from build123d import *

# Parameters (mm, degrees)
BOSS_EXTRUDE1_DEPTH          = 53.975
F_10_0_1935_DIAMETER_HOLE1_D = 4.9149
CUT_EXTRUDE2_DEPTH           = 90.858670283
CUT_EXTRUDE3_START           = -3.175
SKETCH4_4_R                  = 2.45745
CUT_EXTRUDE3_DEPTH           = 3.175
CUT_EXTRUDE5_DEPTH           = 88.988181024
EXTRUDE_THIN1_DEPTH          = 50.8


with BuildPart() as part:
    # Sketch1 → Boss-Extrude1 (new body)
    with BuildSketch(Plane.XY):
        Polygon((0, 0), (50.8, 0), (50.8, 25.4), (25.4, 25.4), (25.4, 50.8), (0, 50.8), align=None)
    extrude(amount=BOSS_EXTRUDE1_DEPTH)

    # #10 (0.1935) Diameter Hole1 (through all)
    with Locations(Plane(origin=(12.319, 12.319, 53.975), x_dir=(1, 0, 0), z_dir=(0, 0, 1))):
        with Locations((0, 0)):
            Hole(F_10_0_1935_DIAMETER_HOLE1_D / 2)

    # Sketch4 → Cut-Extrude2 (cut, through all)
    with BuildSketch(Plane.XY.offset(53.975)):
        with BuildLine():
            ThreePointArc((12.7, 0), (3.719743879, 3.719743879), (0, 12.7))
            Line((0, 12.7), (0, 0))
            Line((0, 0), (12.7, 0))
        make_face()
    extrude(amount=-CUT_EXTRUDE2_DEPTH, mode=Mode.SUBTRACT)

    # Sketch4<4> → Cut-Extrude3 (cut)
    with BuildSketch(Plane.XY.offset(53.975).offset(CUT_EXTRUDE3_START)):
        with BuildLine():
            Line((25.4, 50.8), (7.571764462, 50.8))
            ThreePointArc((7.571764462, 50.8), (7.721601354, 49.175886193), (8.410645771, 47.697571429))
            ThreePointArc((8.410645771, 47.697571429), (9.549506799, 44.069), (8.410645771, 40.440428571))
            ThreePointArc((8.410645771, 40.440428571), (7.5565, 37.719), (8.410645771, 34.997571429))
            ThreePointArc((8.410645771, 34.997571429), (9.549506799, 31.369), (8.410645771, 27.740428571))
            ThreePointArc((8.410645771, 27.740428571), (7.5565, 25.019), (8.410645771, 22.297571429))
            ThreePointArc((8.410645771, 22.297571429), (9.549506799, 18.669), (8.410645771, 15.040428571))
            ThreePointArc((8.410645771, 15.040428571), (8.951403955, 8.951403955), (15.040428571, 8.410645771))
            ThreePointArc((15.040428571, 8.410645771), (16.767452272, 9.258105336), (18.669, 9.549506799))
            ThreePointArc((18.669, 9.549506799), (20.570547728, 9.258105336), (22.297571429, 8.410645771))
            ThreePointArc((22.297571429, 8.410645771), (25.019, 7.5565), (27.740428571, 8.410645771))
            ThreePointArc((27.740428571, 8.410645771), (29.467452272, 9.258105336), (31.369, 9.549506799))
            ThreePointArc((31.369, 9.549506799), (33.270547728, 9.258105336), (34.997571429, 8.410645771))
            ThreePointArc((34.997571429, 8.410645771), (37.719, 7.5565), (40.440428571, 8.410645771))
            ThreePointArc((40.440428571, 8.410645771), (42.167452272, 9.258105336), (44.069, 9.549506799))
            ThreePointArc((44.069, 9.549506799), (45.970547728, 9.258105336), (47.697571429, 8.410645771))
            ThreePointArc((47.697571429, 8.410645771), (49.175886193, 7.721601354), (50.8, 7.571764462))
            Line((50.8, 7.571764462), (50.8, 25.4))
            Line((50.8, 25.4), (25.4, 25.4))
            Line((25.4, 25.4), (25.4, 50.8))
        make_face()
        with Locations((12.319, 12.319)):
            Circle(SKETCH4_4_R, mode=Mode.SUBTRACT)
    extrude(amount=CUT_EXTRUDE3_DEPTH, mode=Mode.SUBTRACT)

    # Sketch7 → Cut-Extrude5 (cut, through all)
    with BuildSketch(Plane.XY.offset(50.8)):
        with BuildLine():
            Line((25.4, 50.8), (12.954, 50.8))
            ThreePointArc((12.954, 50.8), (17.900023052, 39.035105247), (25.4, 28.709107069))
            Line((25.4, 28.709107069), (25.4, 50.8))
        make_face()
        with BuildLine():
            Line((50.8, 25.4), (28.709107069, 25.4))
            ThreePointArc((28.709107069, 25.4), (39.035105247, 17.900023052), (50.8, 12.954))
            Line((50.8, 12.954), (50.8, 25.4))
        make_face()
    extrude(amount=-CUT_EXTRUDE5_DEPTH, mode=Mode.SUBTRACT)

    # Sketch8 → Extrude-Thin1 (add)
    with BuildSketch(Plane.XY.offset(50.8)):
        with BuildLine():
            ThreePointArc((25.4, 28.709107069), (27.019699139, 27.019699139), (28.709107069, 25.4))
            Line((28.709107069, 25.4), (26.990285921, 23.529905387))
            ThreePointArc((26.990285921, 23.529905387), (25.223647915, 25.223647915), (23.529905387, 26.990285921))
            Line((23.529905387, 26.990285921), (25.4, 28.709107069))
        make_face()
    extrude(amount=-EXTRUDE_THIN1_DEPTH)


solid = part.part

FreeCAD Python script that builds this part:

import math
import FreeCAD as App
import Part
import Sketcher

V = App.Vector
Q = App.Units.Quantity

doc = App.newDocument("Part")
body = doc.addObject("PartDesign::Body", "Body")

# Sketch on XY plane
sketch1 = body.newObject("Sketcher::SketchObject", "Sketch")
sketch1.AttachmentSupport = (doc.getObject("XY_Plane"), [""])
sketch1.MapMode = "FlatFace"
sketch1.addGeometry(Part.LineSegment(V(0, 0, 0), V(51, 0, 0)), False)
sketch1.addGeometry(Part.LineSegment(V(51, 0, 0), V(51, 25, 0)), False)
sketch1.addGeometry(Part.LineSegment(V(51, 25, 0), V(25, 25, 0)), False)
sketch1.addGeometry(Part.LineSegment(V(25, 25, 0), V(25, 51, 0)), False)
sketch1.addGeometry(Part.LineSegment(V(25, 51, 0), V(0, 51, 0)), False)
sketch1.addGeometry(Part.LineSegment(V(0, 51, 0), V(0, 0, 0)), False)
sketch1.addConstraint(Sketcher.Constraint("Coincident", 0, 2, 1, 1))
sketch1.addConstraint(Sketcher.Constraint("Coincident", 1, 2, 2, 1))
sketch1.addConstraint(Sketcher.Constraint("Coincident", 2, 2, 3, 1))
sketch1.addConstraint(Sketcher.Constraint("Coincident", 3, 2, 4, 1))
sketch1.addConstraint(Sketcher.Constraint("Coincident", 4, 2, 5, 1))
sketch1.addConstraint(Sketcher.Constraint("Coincident", 5, 2, 0, 1))
sketch1.addConstraint(Sketcher.Constraint("Horizontal", 0))
sketch1.addConstraint(Sketcher.Constraint("Vertical", 1))
sketch1.addConstraint(Sketcher.Constraint("Horizontal", 2))
sketch1.addConstraint(Sketcher.Constraint("Vertical", 3))
sketch1.addConstraint(Sketcher.Constraint("Horizontal", 4))
sketch1.addConstraint(Sketcher.Constraint("Vertical", 5))
sketch1.addConstraint(Sketcher.Constraint("Coincident", 5, 2, -1, 1))
sketch1.addConstraint(Sketcher.Constraint("Equal", 2, 4))
sketch1.addConstraint(Sketcher.Constraint("Equal", 4, 1))
sketch1.addConstraint(Sketcher.Constraint("Equal", 1, 3))
sketch1.addConstraint(Sketcher.Constraint("DistanceX", 0, 1, 0, 2, Q("2 in")))
pad1 = body.newObject("PartDesign::Pad", "Pad")
pad1.Profile = sketch1
pad1.Length = Q("2.125 in")

# Sketch on XY plane
sketch2 = body.newObject("Sketcher::SketchObject", "Sketch001")
sketch2.AttachmentSupport = (doc.getObject("XY_Plane"), [""])
sketch2.MapMode = "FlatFace"
sketch2.AttachmentOffset = App.Placement(V(0, 0, 2.125 * 25.4), App.Rotation())
sketch2.addGeometry(Part.Circle(V(12.3, 12.3, 0), V(0, 0, 1), 2.5), False)
sketch2.addConstraint(Sketcher.Constraint("Diameter", 0, Q("0.1935 in")))
sketch2.addConstraint(Sketcher.Constraint("DistanceX", -1, 1, 0, 3, Q("0.485 in")))
sketch2.addConstraint(Sketcher.Constraint("DistanceY", -1, 1, 0, 3, Q("0.485 in")))
doc.recompute()
hole = body.newObject("PartDesign::Hole", "Hole")
hole.Profile = sketch2
hole.ThreadType = "None"
hole.Diameter = Q("0.1935 in")
hole.DepthType = "ThroughAll"

# Sketch on XY plane
sketch3 = body.newObject("Sketcher::SketchObject", "Sketch002")
sketch3.AttachmentSupport = (doc.getObject("XY_Plane"), [""])
sketch3.MapMode = "FlatFace"
sketch3.AttachmentOffset = App.Placement(V(0, 0, 2.125 * 25.4), App.Rotation())
sketch3.addGeometry(Part.ArcOfCircle(Part.Circle(V(13, 13, 0), V(0, 0, 1), 13), math.radians(180), math.radians(270)), False)
sketch3.addGeometry(Part.LineSegment(V(0, 13, 0), V(0, 0, 0)), False)
sketch3.addGeometry(Part.LineSegment(V(0, 0, 0), V(13, 0, 0)), False)
sketch3.addConstraint(Sketcher.Constraint("Tangent", 0, 1, 1, 1))
sketch3.addConstraint(Sketcher.Constraint("Coincident", 1, 2, 2, 1))
sketch3.addConstraint(Sketcher.Constraint("Tangent", 2, 2, 0, 2))
sketch3.addConstraint(Sketcher.Constraint("Vertical", 1))
sketch3.addConstraint(Sketcher.Constraint("Horizontal", 2))
sketch3.addConstraint(Sketcher.Constraint("Coincident", 1, 2, -1, 1))
sketch3.addConstraint(Sketcher.Constraint("Radius", 0, Q("0.5 in")))
pocket1 = body.newObject("PartDesign::Pocket", "Pocket")
pocket1.Profile = sketch3
pocket1.Type = "ThroughAll"

# Sketch on XY plane
sketch4 = body.newObject("Sketcher::SketchObject", "Sketch003")
sketch4.AttachmentSupport = (doc.getObject("XY_Plane"), [""])
sketch4.MapMode = "FlatFace"
sketch4.AttachmentOffset = App.Placement(V(0, 0, 2 * 25.4), App.Rotation())
sketch4.addGeometry(Part.LineSegment(V(25.4, 50.8, 0), V(7.6, 50.8, 0)), False)
sketch4.addGeometry(Part.ArcOfCircle(Part.Circle(V(12.3, 50.4, 0), V(0, 0, 1), 4.8), math.radians(175), math.radians(215)), False)
sketch4.addGeometry(Part.ArcOfCircle(Part.Circle(V(3.2, 44.1, 0), V(0, 0, 1), 6.3), math.radians(-35), math.radians(35)), False)
sketch4.addGeometry(Part.ArcOfCircle(Part.Circle(V(12.3, 37.7, 0), V(0, 0, 1), 4.8), math.radians(145), math.radians(215)), False)
sketch4.addGeometry(Part.ArcOfCircle(Part.Circle(V(3.2, 31.4, 0), V(0, 0, 1), 6.3), math.radians(-35), math.radians(35)), False)
sketch4.addGeometry(Part.ArcOfCircle(Part.Circle(V(12.3, 25, 0), V(0, 0, 1), 4.8), math.radians(145), math.radians(215)), False)
sketch4.addGeometry(Part.ArcOfCircle(Part.Circle(V(3.2, 18.7, 0), V(0, 0, 1), 6.3), math.radians(-35), math.radians(35)), False)
sketch4.addGeometry(Part.ArcOfCircle(Part.Circle(V(12.3, 12.3, 0), V(0, 0, 1), 4.8), math.radians(145), math.radians(305)), False)
sketch4.addGeometry(Part.ArcOfCircle(Part.Circle(V(18.7, 3.2, 0), V(0, 0, 1), 6.4), math.radians(90), math.radians(125)), False)
sketch4.addGeometry(Part.ArcOfCircle(Part.Circle(V(18.7, 3.2, 0), V(0, 0, 1), 6.4), math.radians(55), math.radians(90)), False)
sketch4.addGeometry(Part.ArcOfCircle(Part.Circle(V(25, 12.3, 0), V(0, 0, 1), 4.8), math.radians(-125), math.radians(-55)), False)
sketch4.addGeometry(Part.ArcOfCircle(Part.Circle(V(31.4, 3.2, 0), V(0, 0, 1), 6.4), math.radians(90), math.radians(125)), False)
sketch4.addGeometry(Part.ArcOfCircle(Part.Circle(V(31.4, 3.2, 0), V(0, 0, 1), 6.4), math.radians(55), math.radians(90)), False)
sketch4.addGeometry(Part.ArcOfCircle(Part.Circle(V(37.7, 12.3, 0), V(0, 0, 1), 4.8), math.radians(-125), math.radians(-55)), False)
sketch4.addGeometry(Part.ArcOfCircle(Part.Circle(V(44.1, 3.2, 0), V(0, 0, 1), 6.4), math.radians(90), math.radians(125)), False)
sketch4.addGeometry(Part.ArcOfCircle(Part.Circle(V(44.1, 3.2, 0), V(0, 0, 1), 6.4), math.radians(55), math.radians(90)), False)
sketch4.addGeometry(Part.ArcOfCircle(Part.Circle(V(50.4, 12.3, 0), V(0, 0, 1), 4.8), math.radians(-125), math.radians(-85)), False)
sketch4.addGeometry(Part.LineSegment(V(50.8, 7.6, 0), V(50.8, 25.4, 0)), False)
sketch4.addGeometry(Part.LineSegment(V(50.8, 25.4, 0), V(25.4, 25.4, 0)), False)
sketch4.addGeometry(Part.LineSegment(V(25.4, 25.4, 0), V(25.4, 50.8, 0)), False)
sketch4.addGeometry(Part.Circle(V(12.3, 12.3, 0), V(0, 0, 1), 2.5), False)
sketch4.addConstraint(Sketcher.Constraint("Coincident", 0, 2, 1, 1))
sketch4.addConstraint(Sketcher.Constraint("Tangent", 1, 2, 2, 2))
sketch4.addConstraint(Sketcher.Constraint("Tangent", 2, 1, 3, 1))
sketch4.addConstraint(Sketcher.Constraint("Tangent", 3, 2, 4, 2))
sketch4.addConstraint(Sketcher.Constraint("Tangent", 4, 1, 5, 1))
sketch4.addConstraint(Sketcher.Constraint("Tangent", 5, 2, 6, 2))
sketch4.addConstraint(Sketcher.Constraint("Tangent", 6, 1, 7, 1))
sketch4.addConstraint(Sketcher.Constraint("Tangent", 7, 2, 8, 2))
sketch4.addConstraint(Sketcher.Constraint("Tangent", 8, 1, 9, 2))
sketch4.addConstraint(Sketcher.Constraint("Tangent", 9, 1, 10, 1))
sketch4.addConstraint(Sketcher.Constraint("Tangent", 10, 2, 11, 2))
sketch4.addConstraint(Sketcher.Constraint("Tangent", 11, 1, 12, 2))
sketch4.addConstraint(Sketcher.Constraint("Tangent", 12, 1, 13, 1))
sketch4.addConstraint(Sketcher.Constraint("Tangent", 13, 2, 14, 2))
sketch4.addConstraint(Sketcher.Constraint("Tangent", 14, 1, 15, 2))
sketch4.addConstraint(Sketcher.Constraint("Tangent", 15, 1, 16, 1))
sketch4.addConstraint(Sketcher.Constraint("Coincident", 16, 2, 17, 1))
sketch4.addConstraint(Sketcher.Constraint("Coincident", 17, 2, 18, 1))
sketch4.addConstraint(Sketcher.Constraint("Coincident", 18, 2, 19, 1))
sketch4.addConstraint(Sketcher.Constraint("Coincident", 19, 2, 0, 1))
sketch4.addConstraint(Sketcher.Constraint("Horizontal", 0))
sketch4.addConstraint(Sketcher.Constraint("Vertical", 17))
sketch4.addConstraint(Sketcher.Constraint("Horizontal", 18))
sketch4.addConstraint(Sketcher.Constraint("Vertical", 19))
sketch4.addConstraint(Sketcher.Constraint("Coincident", 20, 3, 7, 3))
sketch4.addConstraint(Sketcher.Constraint("Equal", 1, 3))
sketch4.addConstraint(Sketcher.Constraint("Equal", 2, 4))
sketch4.addConstraint(Sketcher.Constraint("Equal", 3, 5))
sketch4.addConstraint(Sketcher.Constraint("Equal", 4, 6))
sketch4.addConstraint(Sketcher.Constraint("Equal", 5, 7))
sketch4.addConstraint(Sketcher.Constraint("Equal", 6, 8))
sketch4.addConstraint(Sketcher.Constraint("Equal", 8, 9))
sketch4.addConstraint(Sketcher.Constraint("Equal", 7, 10))
sketch4.addConstraint(Sketcher.Constraint("Equal", 9, 11))
sketch4.addConstraint(Sketcher.Constraint("Equal", 11, 12))
sketch4.addConstraint(Sketcher.Constraint("Equal", 10, 13))
sketch4.addConstraint(Sketcher.Constraint("Equal", 12, 14))
sketch4.addConstraint(Sketcher.Constraint("Equal", 14, 15))
sketch4.addConstraint(Sketcher.Constraint("Equal", 13, 16))
sketch4.addConstraint(Sketcher.Constraint("Horizontal", 7, 3, 10, 3))
sketch4.addConstraint(Sketcher.Constraint("Horizontal", 9, 3, 11, 3))
sketch4.addConstraint(Sketcher.Constraint("Horizontal", 10, 3, 13, 3))
sketch4.addConstraint(Sketcher.Constraint("Horizontal", 12, 3, 14, 3))
sketch4.addConstraint(Sketcher.Constraint("Horizontal", 13, 3, 16, 3))
sketch4.addConstraint(Sketcher.Constraint("Vertical", 1, 3, 3, 3))
sketch4.addConstraint(Sketcher.Constraint("Vertical", 2, 3, 4, 3))
sketch4.addConstraint(Sketcher.Constraint("Vertical", 3, 3, 5, 3))
sketch4.addConstraint(Sketcher.Constraint("Vertical", 4, 3, 6, 3))
sketch4.addConstraint(Sketcher.Constraint("Vertical", 5, 3, 7, 3))
sketch4.addConstraint(Sketcher.Constraint("Vertical", 9, 3, 8, 1))
sketch4.addConstraint(Sketcher.Constraint("Vertical", 12, 3, 11, 1))
sketch4.addConstraint(Sketcher.Constraint("Vertical", 15, 3, 14, 1))
sketch4.addConstraint(Sketcher.Constraint("Equal", 0, 17))
sketch4.addConstraint(Sketcher.Constraint("Equal", 18, 19))
sketch4.addConstraint(Sketcher.Constraint("DistanceX", 18, 2, 18, 1, Q("1 in")))
sketch4.addConstraint(Sketcher.Constraint("Radius", 2, Q("0.25 in")))
sketch4.addConstraint(Sketcher.Constraint("DistanceY", -1, 1, 0, 2, Q("2 in")))
sketch4.addConstraint(Sketcher.Constraint("DistanceX", -1, 1, 16, 2, Q("2 in")))
sketch4.addConstraint(Sketcher.Constraint("Radius", 1, Q("0.1875 in")))
sketch4.addConstraint(Sketcher.Constraint("DistanceY", 5, 3, 1, 3, Q("1 in")))
sketch4.addConstraint(Sketcher.Constraint("DistanceX", 8, 3, 14, 3, Q("1 in")))
sketch4.addConstraint(Sketcher.Constraint("Diameter", 20, Q("0.1935 in")))
sketch4.addConstraint(Sketcher.Constraint("DistanceX", -1, 1, 1, 3, Q("0.485 in")))
pocket2 = body.newObject("PartDesign::Pocket", "Pocket001")
pocket2.Profile = sketch4
pocket2.Length = Q("0.125 in")
pocket2.Reversed = True

# Sketch on XY plane
sketch5 = body.newObject("Sketcher::SketchObject", "Sketch004")
sketch5.AttachmentSupport = (doc.getObject("XY_Plane"), [""])
sketch5.MapMode = "FlatFace"
sketch5.AttachmentOffset = App.Placement(V(0, 0, 2 * 25.4), App.Rotation())
sketch5.addGeometry(Part.LineSegment(V(25, 51, 0), V(13, 51, 0)), False)
sketch5.addGeometry(Part.ArcOfCircle(Part.Circle(V(66, 66, 0), V(0, 0, 1), 56), math.radians(-164), math.radians(-137)), False)
sketch5.addGeometry(Part.LineSegment(V(25, 29, 0), V(25, 51, 0)), False)
sketch5.addGeometry(Part.LineSegment(V(51, 25, 0), V(29, 25, 0)), False)
sketch5.addGeometry(Part.ArcOfCircle(Part.Circle(V(66, 66, 0), V(0, 0, 1), 56), math.radians(-133), math.radians(-106)), False)
sketch5.addGeometry(Part.LineSegment(V(51, 13, 0), V(51, 25, 0)), False)
sketch5.addConstraint(Sketcher.Constraint("Coincident", 0, 2, 1, 1))
sketch5.addConstraint(Sketcher.Constraint("Coincident", 1, 2, 2, 1))
sketch5.addConstraint(Sketcher.Constraint("Coincident", 2, 2, 0, 1))
sketch5.addConstraint(Sketcher.Constraint("Coincident", 3, 2, 4, 1))
sketch5.addConstraint(Sketcher.Constraint("Coincident", 4, 2, 5, 1))
sketch5.addConstraint(Sketcher.Constraint("Coincident", 5, 2, 3, 1))
sketch5.addConstraint(Sketcher.Constraint("Horizontal", 0))
sketch5.addConstraint(Sketcher.Constraint("Vertical", 2))
sketch5.addConstraint(Sketcher.Constraint("Horizontal", 3))
sketch5.addConstraint(Sketcher.Constraint("Vertical", 5))
sketch5.addConstraint(Sketcher.Constraint("Coincident", 4, 3, 1, 3))
sketch5.addConstraint(Sketcher.Constraint("Equal", 1, 4))
sketch5.addConstraint(Sketcher.Constraint("Equal", 3, 2))
sketch5.addConstraint(Sketcher.Constraint("Equal", 0, 5))
sketch5.addConstraint(Sketcher.Constraint("DistanceY", -1, 1, 0, 2, Q("2 in")))
sketch5.addConstraint(Sketcher.Constraint("DistanceX", -1, 1, 1, 2, Q("1 in")))
sketch5.addConstraint(Sketcher.Constraint("DistanceY", -1, 1, 3, 2, Q("1 in")))
sketch5.addConstraint(Sketcher.Constraint("Radius", 1, Q("2.1875 in")))
sketch5.addConstraint(Sketcher.Constraint("DistanceX", 0, 2, 0, 1, Q("0.49 in")))
pocket3 = body.newObject("PartDesign::Pocket", "Pocket002")
pocket3.Profile = sketch5
pocket3.Type = "ThroughAll"

# Sketch on XY plane
sketch6 = body.newObject("Sketcher::SketchObject", "Sketch005")
sketch6.AttachmentSupport = (doc.getObject("XY_Plane"), [""])
sketch6.MapMode = "FlatFace"
sketch6.AttachmentOffset = App.Placement(V(0, 0, 2 * 25.4), App.Rotation())
sketch6.addGeometry(Part.ArcOfCircle(Part.Circle(V(66.3, 66.3, 0), V(0, 0, 1), 55.6), math.radians(-137.41), math.radians(-132.59)), False)
sketch6.addGeometry(Part.LineSegment(V(25.4, 28.7, 0), V(23.5, 27, 0)), False)
sketch6.addGeometry(Part.ArcOfCircle(Part.Circle(V(66.3, 66.3, 0), V(0, 0, 1), 58.1), math.radians(-137.41), math.radians(-132.59)), False)
sketch6.addGeometry(Part.LineSegment(V(27, 23.5, 0), V(28.7, 25.4, 0)), False)
sketch6.addConstraint(Sketcher.Constraint("Coincident", 0, 1, 1, 1))
sketch6.addConstraint(Sketcher.Constraint("Coincident", 1, 2, 2, 1))
sketch6.addConstraint(Sketcher.Constraint("Coincident", 2, 2, 3, 1))
sketch6.addConstraint(Sketcher.Constraint("Coincident", 3, 2, 0, 2))
sketch6.addConstraint(Sketcher.Constraint("Coincident", 2, 3, 0, 3))
sketch6.addConstraint(Sketcher.Constraint("DistanceX", -1, 1, 0, 1, Q("1 in")))
sketch6.addConstraint(Sketcher.Constraint("DistanceY", -1, 1, 3, 2, Q("1 in")))
sketch6.addConstraint(Sketcher.Constraint("Radius", 0, Q("2.1875 in")))
sketch6.addConstraint(Sketcher.Constraint("Distance", 1, Q("0.1 in")))
sketch6.addConstraint(Sketcher.Constraint("DistanceY", 2, 2, 0, 1, 5.179202))
sketch6.addConstraint(Sketcher.Constraint("DistanceX", 1, 2, 3, 2, 5.179202))
sketch6.addConstraint(Sketcher.Constraint("DistanceX", -1, 1, 0, 3, 66.30832))
sketch6.addConstraint(Sketcher.Constraint("DistanceY", -1, 1, 0, 3, 66.30832))
pad2 = body.newObject("PartDesign::Pad", "Pad001")
pad2.Profile = sketch6
pad2.Length = Q("2 in")
pad2.Reversed = True

doc.recompute()
